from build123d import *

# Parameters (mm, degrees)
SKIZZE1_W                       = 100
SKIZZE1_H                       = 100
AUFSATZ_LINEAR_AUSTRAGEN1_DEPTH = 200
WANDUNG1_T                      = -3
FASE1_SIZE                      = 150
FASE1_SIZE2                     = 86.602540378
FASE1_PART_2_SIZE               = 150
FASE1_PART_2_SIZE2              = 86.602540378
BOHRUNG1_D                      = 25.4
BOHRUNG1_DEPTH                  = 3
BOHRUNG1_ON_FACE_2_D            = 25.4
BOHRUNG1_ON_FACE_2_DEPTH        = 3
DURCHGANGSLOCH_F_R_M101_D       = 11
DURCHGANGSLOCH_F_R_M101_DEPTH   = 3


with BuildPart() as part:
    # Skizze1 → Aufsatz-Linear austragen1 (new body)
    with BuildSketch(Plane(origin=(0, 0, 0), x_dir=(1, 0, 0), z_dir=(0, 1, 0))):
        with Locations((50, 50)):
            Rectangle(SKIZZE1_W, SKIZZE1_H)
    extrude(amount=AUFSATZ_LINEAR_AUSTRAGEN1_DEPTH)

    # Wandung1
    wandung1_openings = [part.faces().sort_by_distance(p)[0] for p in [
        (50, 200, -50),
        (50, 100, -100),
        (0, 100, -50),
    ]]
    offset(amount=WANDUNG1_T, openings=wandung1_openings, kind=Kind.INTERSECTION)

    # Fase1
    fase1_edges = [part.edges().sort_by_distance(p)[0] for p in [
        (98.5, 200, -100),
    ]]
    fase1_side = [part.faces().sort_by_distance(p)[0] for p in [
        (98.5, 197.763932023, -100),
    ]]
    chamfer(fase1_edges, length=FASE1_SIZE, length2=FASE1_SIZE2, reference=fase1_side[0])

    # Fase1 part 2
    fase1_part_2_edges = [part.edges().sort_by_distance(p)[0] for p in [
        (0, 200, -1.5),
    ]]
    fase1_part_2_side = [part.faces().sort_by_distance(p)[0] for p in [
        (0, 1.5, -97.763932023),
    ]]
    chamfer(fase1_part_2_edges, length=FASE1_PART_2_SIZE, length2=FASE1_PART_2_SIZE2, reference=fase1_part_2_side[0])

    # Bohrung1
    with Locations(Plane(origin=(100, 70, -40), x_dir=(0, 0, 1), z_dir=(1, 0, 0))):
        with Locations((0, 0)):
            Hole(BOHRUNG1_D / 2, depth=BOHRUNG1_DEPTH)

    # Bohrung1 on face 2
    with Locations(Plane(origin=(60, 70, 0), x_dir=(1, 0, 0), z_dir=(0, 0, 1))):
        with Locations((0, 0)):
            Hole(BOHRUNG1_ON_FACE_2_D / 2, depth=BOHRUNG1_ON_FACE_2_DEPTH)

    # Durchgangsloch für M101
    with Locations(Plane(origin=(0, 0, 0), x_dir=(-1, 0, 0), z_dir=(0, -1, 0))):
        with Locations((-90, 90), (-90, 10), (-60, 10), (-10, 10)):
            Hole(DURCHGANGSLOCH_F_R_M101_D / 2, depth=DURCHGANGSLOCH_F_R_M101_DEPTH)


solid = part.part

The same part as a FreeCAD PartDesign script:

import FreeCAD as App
import Part
import Sketcher
from FreeCAD import Vector


def edges_at(feature, points):
    """Names of the edges that pass closest to the given points."""
    edges = feature.Shape.Edges
    near = lambda p: min(range(len(edges)), key=lambda i: edges[i].distToShape(Part.Vertex(*p))[0])
    return sorted({f"Edge{near(p) + 1}" for p in points})


def faces_at(feature, points):
    """Names of the faces that lie closest to the given points."""
    faces = feature.Shape.Faces
    near = lambda p: min(range(len(faces)), key=lambda i: faces[i].distToShape(Part.Vertex(*p))[0])
    return sorted({f"Face{near(p) + 1}" for p in points})

doc = App.newDocument("Part")
body = doc.addObject("PartDesign::Body", "Body")

sketch1 = doc.addObject("Sketcher::SketchObject", "Sketch")
body.addObject(sketch1)
sketch1.AttachmentSupport = (doc.XZ_Plane, [""])
sketch1.MapMode = "FlatFace"
sketch1.addGeometry(Part.LineSegment(Vector(0, -100, 0), Vector(0, 0, 0)), False)
sketch1.addGeometry(Part.LineSegment(Vector(0, 0, 0), Vector(100, 0, 0)), False)
sketch1.addGeometry(Part.LineSegment(Vector(100, 0, 0), Vector(100, -100, 0)), False)
sketch1.addGeometry(Part.LineSegment(Vector(100, -100, 0), Vector(0, -100, 0)), False)
sketch1.addConstraint(Sketcher.Constraint("Coincident", 0, 2, 1, 1))
sketch1.addConstraint(Sketcher.Constraint("Coincident", 1, 2, 2, 1))
sketch1.addConstraint(Sketcher.Constraint("Coincident", 2, 2, 3, 1))
sketch1.addConstraint(Sketcher.Constraint("Coincident", 3, 2, 0, 1))
sketch1.addConstraint(Sketcher.Constraint("Vertical", 0))
sketch1.addConstraint(Sketcher.Constraint("Horizontal", 1))
sketch1.addConstraint(Sketcher.Constraint("Vertical", 2))
sketch1.addConstraint(Sketcher.Constraint("Horizontal", 3))
sketch1.addConstraint(Sketcher.Constraint("Coincident", 0, 2, -1, 1))
sketch1.addConstraint(Sketcher.Constraint("Equal", 3, 0))
sketch1.addConstraint(Sketcher.Constraint("DistanceX", 1, 1, 1, 2, 100.0))
pad1 = doc.addObject("PartDesign::Pad", "Pad")
body.addObject(pad1)
pad1.Profile = sketch1
pad1.Length = 200
pad1.Reversed = True
doc.recompute()

thickness = doc.addObject("PartDesign::Thickness", "Thickness")
body.addObject(thickness)
thickness.Base = (pad1, faces_at(pad1, [(50, 200, -50), (50, 100, -100), (0, 100, -50)]))
thickness.Value = 3
thickness.Reversed = True
thickness.Join = "Intersection"
doc.recompute()

chamfer = doc.addObject("PartDesign::Chamfer", "Chamfer")
body.addObject(chamfer)
chamfer.Base = (thickness, edges_at(thickness, [(98.5, 200, -100)]))
chamfer.ChamferType = "Two distances"
chamfer.Size = 150
chamfer.Size2 = 86.60254
doc.recompute()

chamfer2 = doc.addObject("PartDesign::Chamfer", "Chamfer001")
body.addObject(chamfer2)
chamfer2.Base = (chamfer, edges_at(chamfer, [(0, 200, -1.5)]))
chamfer2.ChamferType = "Two distances"
chamfer2.Size = 150
chamfer2.Size2 = 86.60254
chamfer2.FlipDirection = True

sketch2 = doc.addObject("Sketcher::SketchObject", "Sketch001")
body.addObject(sketch2)
sketch2.AttachmentSupport = (doc.YZ_Plane, [""])
sketch2.MapMode = "FlatFace"
sketch2.AttachmentOffset = App.Placement(Vector(0, 0, 100), App.Rotation())
sketch2.addGeometry(Part.Circle(Vector(70, -40, 0), Vector(0, 0, 1), 12.7), False)
sketch2.addConstraint(Sketcher.Constraint("Diameter", 0, 25.4))
sketch2.addConstraint(Sketcher.Constraint("DistanceX", -1, 1, 0, 3, 70.0))
sketch2.addConstraint(Sketcher.Constraint("DistanceY", 0, 3, -1, 1, 40.0))
doc.recompute()
hole = doc.addObject("PartDesign::Hole", "Hole")
body.addObject(hole)
hole.Profile = sketch2
hole.ThreadType = "None"
hole.Diameter = 25.4
hole.DepthType = "Dimension"
hole.Depth = 3
hole.DrillPoint = "Flat"

sketch3 = doc.addObject("Sketcher::SketchObject", "Sketch002")
body.addObject(sketch3)
sketch3.AttachmentSupport = (doc.XY_Plane, [""])
sketch3.MapMode = "FlatFace"
sketch3.addGeometry(Part.Circle(Vector(60, 70, 0), Vector(0, 0, 1), 12.7), False)
sketch3.addConstraint(Sketcher.Constraint("Diameter", 0, 25.4))
sketch3.addConstraint(Sketcher.Constraint("DistanceX", -1, 1, 0, 3, 60.0))
sketch3.addConstraint(Sketcher.Constraint("DistanceY", -1, 1, 0, 3, 70.0))
doc.recompute()
hole2 = doc.addObject("PartDesign::Hole", "Hole001")
body.addObject(hole2)
hole2.Profile = sketch3
hole2.ThreadType = "None"
hole2.Diameter = 25.4
hole2.DepthType = "Dimension"
hole2.Depth = 3
hole2.DrillPoint = "Flat"

sketch4 = doc.addObject("Sketcher::SketchObject", "Sketch003")
body.addObject(sketch4)
sketch4.AttachmentSupport = (doc.XZ_Plane, [""])
sketch4.MapMode = "FlatFace"
sketch4.addGeometry(Part.Circle(Vector(90, -90, 0), Vector(0, 0, 1), 5.5), False)
sketch4.addGeometry(Part.Circle(Vector(90, -10, 0), Vector(0, 0, 1), 5.5), False)
sketch4.addGeometry(Part.Circle(Vector(60, -10, 0), Vector(0, 0, 1), 5.5), False)
sketch4.addGeometry(Part.Circle(Vector(10, -10, 0), Vector(0, 0, 1), 5.5), False)
sketch4.addConstraint(Sketcher.Constraint("Equal", 0, 1))
sketch4.addConstraint(Sketcher.Constraint("Equal", 1, 2))
sketch4.addConstraint(Sketcher.Constraint("Equal", 2, 3))
sketch4.addConstraint(Sketcher.Constraint("Horizontal", 1, 3, 2, 3))
sketch4.addConstraint(Sketcher.Constraint("Horizontal", 2, 3, 3, 3))
sketch4.addConstraint(Sketcher.Constraint("Vertical", 0, 3, 1, 3))
sketch4.addConstraint(Sketcher.Constraint("Diameter", 0, 11.0))
sketch4.addConstraint(Sketcher.Constraint("DistanceX", -1, 1, 0, 3, 90.0))
sketch4.addConstraint(Sketcher.Constraint("DistanceY", 0, 3, -1, 1, 90.0))
sketch4.addConstraint(Sketcher.Constraint("DistanceY", 1, 3, -1, 1, 10.0))
sketch4.addConstraint(Sketcher.Constraint("DistanceX", -1, 1, 2, 3, 60.0))
sketch4.addConstraint(Sketcher.Constraint("DistanceX", -1, 1, 3, 3, 10.0))
doc.recompute()
hole3 = doc.addObject("PartDesign::Hole", "Hole002")
body.addObject(hole3)
hole3.Profile = sketch4
hole3.ThreadType = "None"
hole3.Diameter = 11
hole3.DepthType = "Dimension"
hole3.Depth = 3
hole3.DrillPoint = "Flat"

doc.recompute()
